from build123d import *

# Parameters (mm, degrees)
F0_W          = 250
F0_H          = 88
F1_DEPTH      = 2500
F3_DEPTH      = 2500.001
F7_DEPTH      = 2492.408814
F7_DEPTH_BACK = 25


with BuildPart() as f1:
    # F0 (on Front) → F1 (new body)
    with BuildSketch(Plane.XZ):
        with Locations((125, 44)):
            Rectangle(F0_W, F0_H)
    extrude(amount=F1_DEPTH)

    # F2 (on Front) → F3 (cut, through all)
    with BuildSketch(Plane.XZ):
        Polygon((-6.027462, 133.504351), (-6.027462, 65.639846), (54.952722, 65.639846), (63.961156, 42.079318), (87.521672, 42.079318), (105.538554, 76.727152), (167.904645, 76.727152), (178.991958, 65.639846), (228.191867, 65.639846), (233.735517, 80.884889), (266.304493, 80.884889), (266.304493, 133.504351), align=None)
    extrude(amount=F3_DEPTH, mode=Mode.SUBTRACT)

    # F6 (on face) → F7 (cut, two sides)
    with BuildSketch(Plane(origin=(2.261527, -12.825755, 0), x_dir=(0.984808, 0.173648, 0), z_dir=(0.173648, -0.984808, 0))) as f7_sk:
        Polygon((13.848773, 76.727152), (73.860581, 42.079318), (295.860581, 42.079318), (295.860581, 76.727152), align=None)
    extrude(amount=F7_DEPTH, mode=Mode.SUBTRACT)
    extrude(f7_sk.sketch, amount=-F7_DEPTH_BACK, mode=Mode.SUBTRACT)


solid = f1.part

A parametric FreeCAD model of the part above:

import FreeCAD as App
import Part
import Sketcher
from FreeCAD import Vector
Q = App.Units.Quantity

doc = App.newDocument("Part")
body = doc.addObject("PartDesign::Body", "Body")

sketch1 = body.newObject("Sketcher::SketchObject", "Sketch")
sketch1.AttachmentSupport = (doc.getObject("XZ_Plane"), [""])
sketch1.MapMode = "FlatFace"
sketch1.addGeometry(Part.LineSegment(Vector(0, 88, 0), Vector(0, 0, 0)), False)
sketch1.addGeometry(Part.LineSegment(Vector(0, 0, 0), Vector(250, 0, 0)), False)
sketch1.addGeometry(Part.LineSegment(Vector(250, 0, 0), Vector(250, 88, 0)), False)
sketch1.addGeometry(Part.LineSegment(Vector(250, 88, 0), Vector(0, 88, 0)), False)
sketch1.addConstraint(Sketcher.Constraint("Coincident", 0, 2, 1, 1))
sketch1.addConstraint(Sketcher.Constraint("Coincident", 1, 2, 2, 1))
sketch1.addConstraint(Sketcher.Constraint("Coincident", 2, 2, 3, 1))
sketch1.addConstraint(Sketcher.Constraint("Coincident", 3, 2, 0, 1))
sketch1.addConstraint(Sketcher.Constraint("Vertical", 0))
sketch1.addConstraint(Sketcher.Constraint("Horizontal", 1))
sketch1.addConstraint(Sketcher.Constraint("Vertical", 2))
sketch1.addConstraint(Sketcher.Constraint("Horizontal", 3))
sketch1.addConstraint(Sketcher.Constraint("Coincident", 0, 2, -1, 1))
sketch1.addConstraint(Sketcher.Constraint("DistanceX", 1, 1, 1, 2, 250.0))
sketch1.addConstraint(Sketcher.Constraint("DistanceY", 0, 2, 0, 1, 88.0))
pad1 = body.newObject("PartDesign::Pad", "Pad")
pad1.Profile = sketch1
pad1.Length = 2500

sketch2 = body.newObject("Sketcher::SketchObject", "Sketch001")
sketch2.AttachmentSupport = (doc.getObject("XZ_Plane"), [""])
sketch2.MapMode = "FlatFace"
sketch2.addGeometry(Part.LineSegment(Vector(-6, 134, 0), Vector(-6, 66, 0)), False)
sketch2.addGeometry(Part.LineSegment(Vector(-6, 66, 0), Vector(55, 66, 0)), False)
sketch2.addGeometry(Part.LineSegment(Vector(55, 66, 0), Vector(64, 42, 0)), False)
sketch2.addGeometry(Part.LineSegment(Vector(64, 42, 0), Vector(88, 42, 0)), False)
sketch2.addGeometry(Part.LineSegment(Vector(88, 42, 0), Vector(106, 77, 0)), False)
sketch2.addGeometry(Part.LineSegment(Vector(106, 77, 0), Vector(168, 77, 0)), False)
sketch2.addGeometry(Part.LineSegment(Vector(168, 77, 0), Vector(179, 66, 0)), False)
sketch2.addGeometry(Part.LineSegment(Vector(179, 66, 0), Vector(228, 66, 0)), False)
sketch2.addGeometry(Part.LineSegment(Vector(228, 66, 0), Vector(234, 81, 0)), False)
sketch2.addGeometry(Part.LineSegment(Vector(234, 81, 0), Vector(266, 81, 0)), False)
sketch2.addGeometry(Part.LineSegment(Vector(266, 81, 0), Vector(266, 134, 0)), False)
sketch2.addGeometry(Part.LineSegment(Vector(266, 134, 0), Vector(-6, 134, 0)), False)
sketch2.addConstraint(Sketcher.Constraint("Coincident", 0, 2, 1, 1))
sketch2.addConstraint(Sketcher.Constraint("Coincident", 1, 2, 2, 1))
sketch2.addConstraint(Sketcher.Constraint("Coincident", 2, 2, 3, 1))
sketch2.addConstraint(Sketcher.Constraint("Coincident", 3, 2, 4, 1))
sketch2.addConstraint(Sketcher.Constraint("Coincident", 4, 2, 5, 1))
sketch2.addConstraint(Sketcher.Constraint("Coincident", 5, 2, 6, 1))
sketch2.addConstraint(Sketcher.Constraint("Coincident", 6, 2, 7, 1))
sketch2.addConstraint(Sketcher.Constraint("Coincident", 7, 2, 8, 1))
sketch2.addConstraint(Sketcher.Constraint("Coincident", 8, 2, 9, 1))
sketch2.addConstraint(Sketcher.Constraint("Coincident", 9, 2, 10, 1))
sketch2.addConstraint(Sketcher.Constraint("Coincident", 10, 2, 11, 1))
sketch2.addConstraint(Sketcher.Constraint("Coincident", 11, 2, 0, 1))
sketch2.addConstraint(Sketcher.Constraint("Vertical", 0))
sketch2.addConstraint(Sketcher.Constraint("Horizontal", 1))
sketch2.addConstraint(Sketcher.Constraint("Horizontal", 3))
sketch2.addConstraint(Sketcher.Constraint("Horizontal", 5))
sketch2.addConstraint(Sketcher.Constraint("Horizontal", 7))
sketch2.addConstraint(Sketcher.Constraint("Horizontal", 9))
sketch2.addConstraint(Sketcher.Constraint("Vertical", 10))
sketch2.addConstraint(Sketcher.Constraint("Horizontal", 11))
sketch2.addConstraint(Sketcher.Constraint("Horizontal", 1, 2, 6, 2))
sketch2.addConstraint(Sketcher.Constraint("Angle", 6, Q("-44.999982 deg")))
sketch2.addConstraint(Sketcher.Constraint("DistanceX", 5, 1, 5, 2, 62.366091))
sketch2.addConstraint(Sketcher.Constraint("DistanceX", 7, 1, 7, 2, 49.199909))
sketch2.addConstraint(Sketcher.Constraint("DistanceX", 2, 2, 4, 2, 41.577398))
sketch2.addConstraint(Sketcher.Constraint("DistanceY", 5, 2, 10, 2, 56.777199))
sketch2.addConstraint(Sketcher.Constraint("Distance", 4, 39.052278))
sketch2.addConstraint(Sketcher.Constraint("DistanceX", 1, 1, 1, 2, 60.980184))
sketch2.addConstraint(Sketcher.Constraint("DistanceX", 3, 1, 3, 2, 23.560516))
sketch2.addConstraint(Sketcher.Constraint("DistanceX", 9, 1, 9, 2, 32.568976))
sketch2.addConstraint(Sketcher.Constraint("DistanceX", 11, 2, 11, 1, 272.331955))
sketch2.addConstraint(Sketcher.Constraint("DistanceY", 0, 2, 0, 1, 67.864505))
sketch2.addConstraint(Sketcher.Constraint("DistanceY", 10, 1, 10, 2, 52.619462))
sketch2.addConstraint(Sketcher.Constraint("DistanceX", -1, 1, 3, 2, 87.521672))
sketch2.addConstraint(Sketcher.Constraint("DistanceY", -1, 1, 8, 2, 80.884889))
sketch2.addConstraint(Sketcher.Constraint("DistanceX", 0, 2, 2, 2, 69.988618))
pocket1 = body.newObject("PartDesign::Pocket", "Pocket")
pocket1.Profile = sketch2
pocket1.Type = "ThroughAll"
pocket1.Reversed = True

sketch3 = body.newObject("Sketcher::SketchObject", "Sketch002")
sketch3.Placement = App.Placement(Vector(2.261527, -12.825755, 0), App.Rotation(Vector(0.984807791, 0.173647963, 0), Vector(0, 0, 1), Vector(0.173647963, -0.984807791, 0), "ZXY"))
sketch3.addGeometry(Part.LineSegment(Vector(14, 77, 0), Vector(74, 42, 0)), False)
sketch3.addGeometry(Part.LineSegment(Vector(74, 42, 0), Vector(296, 42, 0)), False)
sketch3.addGeometry(Part.LineSegment(Vector(296, 42, 0), Vector(296, 77, 0)), False)
sketch3.addGeometry(Part.LineSegment(Vector(296, 77, 0), Vector(14, 77, 0)), False)
sketch3.addConstraint(Sketcher.Constraint("Coincident", 0, 2, 1, 1))
sketch3.addConstraint(Sketcher.Constraint("Coincident", 1, 2, 2, 1))
sketch3.addConstraint(Sketcher.Constraint("Coincident", 2, 2, 3, 1))
sketch3.addConstraint(Sketcher.Constraint("Coincident", 3, 2, 0, 1))
sketch3.addConstraint(Sketcher.Constraint("Horizontal", 1))
sketch3.addConstraint(Sketcher.Constraint("Vertical", 2))
sketch3.addConstraint(Sketcher.Constraint("Horizontal", 3))
sketch3.addConstraint(Sketcher.Constraint("DistanceX", 1, 1, 1, 2, 222.0))
sketch3.addConstraint(Sketcher.Constraint("Angle", 0, Q("-30 deg")))
sketch3.addConstraint(Sketcher.Constraint("DistanceX", 3, 2, 3, 1, 282.011808))
sketch3.addConstraint(Sketcher.Constraint("DistanceX", -1, 1, 0, 2, 73.860581))
sketch3.addConstraint(Sketcher.Constraint("DistanceY", -1, 1, 0, 2, 42.079318))
pocket2 = body.newObject("PartDesign::Pocket", "Pocket001")
pocket2.Profile = sketch3
pocket2.Type = "ThroughAll"
pocket2.Midplane = True

doc.recompute()
